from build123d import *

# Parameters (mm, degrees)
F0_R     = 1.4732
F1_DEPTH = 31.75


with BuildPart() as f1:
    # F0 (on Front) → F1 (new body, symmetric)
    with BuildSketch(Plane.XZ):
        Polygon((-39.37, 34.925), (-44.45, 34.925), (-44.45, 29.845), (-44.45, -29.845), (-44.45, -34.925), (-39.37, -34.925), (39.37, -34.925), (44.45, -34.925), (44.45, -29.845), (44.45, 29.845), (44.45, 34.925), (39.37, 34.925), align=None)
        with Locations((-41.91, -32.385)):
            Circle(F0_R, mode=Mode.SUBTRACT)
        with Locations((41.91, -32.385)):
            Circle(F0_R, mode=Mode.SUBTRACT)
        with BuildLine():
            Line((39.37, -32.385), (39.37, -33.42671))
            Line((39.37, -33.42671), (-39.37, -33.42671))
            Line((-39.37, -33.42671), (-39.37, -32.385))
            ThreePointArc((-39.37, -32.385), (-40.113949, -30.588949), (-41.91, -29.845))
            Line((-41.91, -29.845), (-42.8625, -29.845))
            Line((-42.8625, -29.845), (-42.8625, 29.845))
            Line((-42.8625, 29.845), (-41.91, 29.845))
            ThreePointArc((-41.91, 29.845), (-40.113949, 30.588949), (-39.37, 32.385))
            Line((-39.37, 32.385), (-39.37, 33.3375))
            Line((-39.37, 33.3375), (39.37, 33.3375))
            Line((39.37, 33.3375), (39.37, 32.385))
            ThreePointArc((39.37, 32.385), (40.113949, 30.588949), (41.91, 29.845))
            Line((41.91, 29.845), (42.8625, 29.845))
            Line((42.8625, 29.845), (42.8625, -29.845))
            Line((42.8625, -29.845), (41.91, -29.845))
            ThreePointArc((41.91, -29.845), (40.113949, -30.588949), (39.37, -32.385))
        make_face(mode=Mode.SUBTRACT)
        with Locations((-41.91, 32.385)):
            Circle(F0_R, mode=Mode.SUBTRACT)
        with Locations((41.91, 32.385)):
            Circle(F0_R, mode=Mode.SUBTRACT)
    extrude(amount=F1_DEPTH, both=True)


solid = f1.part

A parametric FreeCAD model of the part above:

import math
import FreeCAD as App
import Part
import Sketcher
Q = App.Units.Quantity


def add_polygon(sketch, points):
    """Adds a closed chain of lines whose ends are joined by coincident constraints."""
    first, n = sketch.GeometryCount, len(points)
    for a, b in zip(points, points[1:] + points[:1]):
        sketch.addGeometry(Part.LineSegment(App.Vector(*a, 0), App.Vector(*b, 0)), False)
    for i in range(n):
        sketch.addConstraint(Sketcher.Constraint("Coincident", first + i, 2, first + (i + 1) % n, 1))

doc = App.newDocument("Part")
body = doc.addObject("PartDesign::Body", "Body")

sketch1 = body.newObject("Sketcher::SketchObject", "Sketch")
sketch1.AttachmentSupport = (doc.getObject("XZ_Plane"), [""])
sketch1.MapMode = "FlatFace"
add_polygon(sketch1, [(-44.45, 34.925), (-44.45, -34.925), (44.45, -34.925), (44.45, 34.925)])
sketch1.addGeometry(Part.Circle(App.Vector(-41.91, -32.385, 0), App.Vector(0, 0, 1), 1.4732), False)
sketch1.addGeometry(Part.Circle(App.Vector(41.91, -32.385, 0), App.Vector(0, 0, 1), 1.4732), False)
sketch1.addGeometry(Part.ArcOfCircle(Part.Circle(App.Vector(41.910001, -32.385001, 0), App.Vector(0, 0, 1), 2.540001), math.radians(90.000017), math.radians(179.999983)), False)
sketch1.addGeometry(Part.LineSegment(App.Vector(39.37, -32.385, 0), App.Vector(39.37, -33.42671, 0)), False)
sketch1.addGeometry(Part.LineSegment(App.Vector(39.37, -33.42671, 0), App.Vector(-39.37, -33.42671, 0)), False)
sketch1.addGeometry(Part.LineSegment(App.Vector(-39.37, -33.42671, 0), App.Vector(-39.37, -32.385, 0)), False)
sketch1.addGeometry(Part.ArcOfCircle(Part.Circle(App.Vector(-41.910001, -32.385001, 0), App.Vector(0, 0, 1), 2.540001), math.radians(0.000017), math.radians(89.999983)), False)
sketch1.addGeometry(Part.LineSegment(App.Vector(-41.91, -29.845, 0), App.Vector(-42.8625, -29.845, 0)), False)
sketch1.addGeometry(Part.LineSegment(App.Vector(-42.8625, -29.845, 0), App.Vector(-42.8625, 29.845, 0)), False)
sketch1.addGeometry(Part.LineSegment(App.Vector(-42.8625, 29.845, 0), App.Vector(-41.91, 29.845, 0)), False)
sketch1.addGeometry(Part.ArcOfCircle(Part.Circle(App.Vector(-41.910001, 32.385001, 0), App.Vector(0, 0, 1), 2.540001), math.radians(-89.999983), math.radians(-0.000017)), False)
sketch1.addGeometry(Part.LineSegment(App.Vector(-39.37, 32.385, 0), App.Vector(-39.37, 33.3375, 0)), False)
sketch1.addGeometry(Part.LineSegment(App.Vector(-39.37, 33.3375, 0), App.Vector(39.37, 33.3375, 0)), False)
sketch1.addGeometry(Part.LineSegment(App.Vector(39.37, 33.3375, 0), App.Vector(39.37, 32.385, 0)), False)
sketch1.addGeometry(Part.ArcOfCircle(Part.Circle(App.Vector(41.910001, 32.385001, 0), App.Vector(0, 0, 1), 2.540001), math.radians(-179.999983), math.radians(-90.000017)), False)
sketch1.addGeometry(Part.LineSegment(App.Vector(41.91, 29.845, 0), App.Vector(42.8625, 29.845, 0)), False)
sketch1.addGeometry(Part.LineSegment(App.Vector(42.8625, 29.845, 0), App.Vector(42.8625, -29.845, 0)), False)
sketch1.addGeometry(Part.LineSegment(App.Vector(42.8625, -29.845, 0), App.Vector(41.91, -29.845, 0)), False)
sketch1.addGeometry(Part.Circle(App.Vector(-41.91, 32.385, 0), App.Vector(0, 0, 1), 1.4732), False)
sketch1.addGeometry(Part.Circle(App.Vector(41.91, 32.385, 0), App.Vector(0, 0, 1), 1.4732), False)
sketch1.addConstraint([
    Sketcher.Constraint("Tangent", 6, 2, 7, 1),
    Sketcher.Constraint("Coincident", 7, 2, 8, 1),
    Sketcher.Constraint("Coincident", 8, 2, 9, 1),
    Sketcher.Constraint("Tangent", 9, 2, 10, 1),
    Sketcher.Constraint("Tangent", 10, 2, 11, 1),
    Sketcher.Constraint("Coincident", 11, 2, 12, 1),
    Sketcher.Constraint("Coincident", 12, 2, 13, 1),
    Sketcher.Constraint("Tangent", 13, 2, 14, 1),
    Sketcher.Constraint("Tangent", 14, 2, 15, 1),
    Sketcher.Constraint("Coincident", 15, 2, 16, 1),
    Sketcher.Constraint("Coincident", 16, 2, 17, 1),
    Sketcher.Constraint("Tangent", 17, 2, 18, 1),
    Sketcher.Constraint("Tangent", 18, 2, 19, 1),
    Sketcher.Constraint("Coincident", 19, 2, 20, 1),
    Sketcher.Constraint("Coincident", 20, 2, 21, 1),
    Sketcher.Constraint("Tangent", 21, 2, 6, 1),
    Sketcher.Constraint("Vertical", 0),
    Sketcher.Constraint("Horizontal", 1),
    Sketcher.Constraint("Vertical", 2),
    Sketcher.Constraint("Horizontal", 3),
    Sketcher.Constraint("Vertical", 7),
    Sketcher.Constraint("Horizontal", 8),
    Sketcher.Constraint("Vertical", 9),
    Sketcher.Constraint("Horizontal", 11),
    Sketcher.Constraint("Vertical", 12),
    Sketcher.Constraint("Horizontal", 13),
    Sketcher.Constraint("Vertical", 15),
    Sketcher.Constraint("Horizontal", 16),
    Sketcher.Constraint("Vertical", 17),
    Sketcher.Constraint("Horizontal", 19),
    Sketcher.Constraint("Vertical", 20),
    Sketcher.Constraint("Horizontal", 21),
    Sketcher.Constraint("Coincident", 6, 3, 5, 3),
    Sketcher.Constraint("Coincident", 10, 3, 4, 3),
    Sketcher.Constraint("Coincident", 22, 3, 14, 3),
    Sketcher.Constraint("Coincident", 23, 3, 18, 3),
    Sketcher.Constraint("Equal", 4, 5),
    Sketcher.Constraint("Equal", 6, 10),
    Sketcher.Constraint("Equal", 10, 14),
    Sketcher.Constraint("Equal", 14, 18),
    Sketcher.Constraint("Equal", 5, 22),
    Sketcher.Constraint("Equal", 22, 23),
    Sketcher.Constraint("Symmetric", 5, 3, 14, 3, -1, 1),
    Sketcher.Constraint("Symmetric", 4, 3, 18, 3, -1, 1),
    Sketcher.Constraint("Symmetric", 0, 2, 2, 2, -1, 1),
    Sketcher.Constraint("Symmetric", 4, 3, 5, 3, -2),
    Sketcher.Constraint("Equal", 13, 19),
    Sketcher.Constraint("Equal", 21, 15),
    Sketcher.Constraint("Radius", 6, Q("0.1 in")),
    Sketcher.Constraint("Diameter", 4, Q("0.116 in")),
    Sketcher.Constraint("DistanceX", 1, 1, 1, 2, Q("3.5 in")),
    Sketcher.Constraint("DistanceX", 8, 2, 8, 1, Q("3.1 in")),
    Sketcher.Constraint("DistanceY", 0, 2, 0, 1, Q("2.75 in")),
    Sketcher.Constraint("DistanceY", 12, 1, 12, 2, Q("2.35 in")),
    Sketcher.Constraint("DistanceX", 11, 2, 11, 1, Q("0.0375 in")),
    Sketcher.Constraint("DistanceY", 7, 2, 7, 1, Q("1.04171 mm")),
])
pad1 = body.newObject("PartDesign::Pad", "Pad")
pad1.Profile = sketch1
pad1.Length = Q("2.5 in")
pad1.Midplane = True

doc.recompute()
